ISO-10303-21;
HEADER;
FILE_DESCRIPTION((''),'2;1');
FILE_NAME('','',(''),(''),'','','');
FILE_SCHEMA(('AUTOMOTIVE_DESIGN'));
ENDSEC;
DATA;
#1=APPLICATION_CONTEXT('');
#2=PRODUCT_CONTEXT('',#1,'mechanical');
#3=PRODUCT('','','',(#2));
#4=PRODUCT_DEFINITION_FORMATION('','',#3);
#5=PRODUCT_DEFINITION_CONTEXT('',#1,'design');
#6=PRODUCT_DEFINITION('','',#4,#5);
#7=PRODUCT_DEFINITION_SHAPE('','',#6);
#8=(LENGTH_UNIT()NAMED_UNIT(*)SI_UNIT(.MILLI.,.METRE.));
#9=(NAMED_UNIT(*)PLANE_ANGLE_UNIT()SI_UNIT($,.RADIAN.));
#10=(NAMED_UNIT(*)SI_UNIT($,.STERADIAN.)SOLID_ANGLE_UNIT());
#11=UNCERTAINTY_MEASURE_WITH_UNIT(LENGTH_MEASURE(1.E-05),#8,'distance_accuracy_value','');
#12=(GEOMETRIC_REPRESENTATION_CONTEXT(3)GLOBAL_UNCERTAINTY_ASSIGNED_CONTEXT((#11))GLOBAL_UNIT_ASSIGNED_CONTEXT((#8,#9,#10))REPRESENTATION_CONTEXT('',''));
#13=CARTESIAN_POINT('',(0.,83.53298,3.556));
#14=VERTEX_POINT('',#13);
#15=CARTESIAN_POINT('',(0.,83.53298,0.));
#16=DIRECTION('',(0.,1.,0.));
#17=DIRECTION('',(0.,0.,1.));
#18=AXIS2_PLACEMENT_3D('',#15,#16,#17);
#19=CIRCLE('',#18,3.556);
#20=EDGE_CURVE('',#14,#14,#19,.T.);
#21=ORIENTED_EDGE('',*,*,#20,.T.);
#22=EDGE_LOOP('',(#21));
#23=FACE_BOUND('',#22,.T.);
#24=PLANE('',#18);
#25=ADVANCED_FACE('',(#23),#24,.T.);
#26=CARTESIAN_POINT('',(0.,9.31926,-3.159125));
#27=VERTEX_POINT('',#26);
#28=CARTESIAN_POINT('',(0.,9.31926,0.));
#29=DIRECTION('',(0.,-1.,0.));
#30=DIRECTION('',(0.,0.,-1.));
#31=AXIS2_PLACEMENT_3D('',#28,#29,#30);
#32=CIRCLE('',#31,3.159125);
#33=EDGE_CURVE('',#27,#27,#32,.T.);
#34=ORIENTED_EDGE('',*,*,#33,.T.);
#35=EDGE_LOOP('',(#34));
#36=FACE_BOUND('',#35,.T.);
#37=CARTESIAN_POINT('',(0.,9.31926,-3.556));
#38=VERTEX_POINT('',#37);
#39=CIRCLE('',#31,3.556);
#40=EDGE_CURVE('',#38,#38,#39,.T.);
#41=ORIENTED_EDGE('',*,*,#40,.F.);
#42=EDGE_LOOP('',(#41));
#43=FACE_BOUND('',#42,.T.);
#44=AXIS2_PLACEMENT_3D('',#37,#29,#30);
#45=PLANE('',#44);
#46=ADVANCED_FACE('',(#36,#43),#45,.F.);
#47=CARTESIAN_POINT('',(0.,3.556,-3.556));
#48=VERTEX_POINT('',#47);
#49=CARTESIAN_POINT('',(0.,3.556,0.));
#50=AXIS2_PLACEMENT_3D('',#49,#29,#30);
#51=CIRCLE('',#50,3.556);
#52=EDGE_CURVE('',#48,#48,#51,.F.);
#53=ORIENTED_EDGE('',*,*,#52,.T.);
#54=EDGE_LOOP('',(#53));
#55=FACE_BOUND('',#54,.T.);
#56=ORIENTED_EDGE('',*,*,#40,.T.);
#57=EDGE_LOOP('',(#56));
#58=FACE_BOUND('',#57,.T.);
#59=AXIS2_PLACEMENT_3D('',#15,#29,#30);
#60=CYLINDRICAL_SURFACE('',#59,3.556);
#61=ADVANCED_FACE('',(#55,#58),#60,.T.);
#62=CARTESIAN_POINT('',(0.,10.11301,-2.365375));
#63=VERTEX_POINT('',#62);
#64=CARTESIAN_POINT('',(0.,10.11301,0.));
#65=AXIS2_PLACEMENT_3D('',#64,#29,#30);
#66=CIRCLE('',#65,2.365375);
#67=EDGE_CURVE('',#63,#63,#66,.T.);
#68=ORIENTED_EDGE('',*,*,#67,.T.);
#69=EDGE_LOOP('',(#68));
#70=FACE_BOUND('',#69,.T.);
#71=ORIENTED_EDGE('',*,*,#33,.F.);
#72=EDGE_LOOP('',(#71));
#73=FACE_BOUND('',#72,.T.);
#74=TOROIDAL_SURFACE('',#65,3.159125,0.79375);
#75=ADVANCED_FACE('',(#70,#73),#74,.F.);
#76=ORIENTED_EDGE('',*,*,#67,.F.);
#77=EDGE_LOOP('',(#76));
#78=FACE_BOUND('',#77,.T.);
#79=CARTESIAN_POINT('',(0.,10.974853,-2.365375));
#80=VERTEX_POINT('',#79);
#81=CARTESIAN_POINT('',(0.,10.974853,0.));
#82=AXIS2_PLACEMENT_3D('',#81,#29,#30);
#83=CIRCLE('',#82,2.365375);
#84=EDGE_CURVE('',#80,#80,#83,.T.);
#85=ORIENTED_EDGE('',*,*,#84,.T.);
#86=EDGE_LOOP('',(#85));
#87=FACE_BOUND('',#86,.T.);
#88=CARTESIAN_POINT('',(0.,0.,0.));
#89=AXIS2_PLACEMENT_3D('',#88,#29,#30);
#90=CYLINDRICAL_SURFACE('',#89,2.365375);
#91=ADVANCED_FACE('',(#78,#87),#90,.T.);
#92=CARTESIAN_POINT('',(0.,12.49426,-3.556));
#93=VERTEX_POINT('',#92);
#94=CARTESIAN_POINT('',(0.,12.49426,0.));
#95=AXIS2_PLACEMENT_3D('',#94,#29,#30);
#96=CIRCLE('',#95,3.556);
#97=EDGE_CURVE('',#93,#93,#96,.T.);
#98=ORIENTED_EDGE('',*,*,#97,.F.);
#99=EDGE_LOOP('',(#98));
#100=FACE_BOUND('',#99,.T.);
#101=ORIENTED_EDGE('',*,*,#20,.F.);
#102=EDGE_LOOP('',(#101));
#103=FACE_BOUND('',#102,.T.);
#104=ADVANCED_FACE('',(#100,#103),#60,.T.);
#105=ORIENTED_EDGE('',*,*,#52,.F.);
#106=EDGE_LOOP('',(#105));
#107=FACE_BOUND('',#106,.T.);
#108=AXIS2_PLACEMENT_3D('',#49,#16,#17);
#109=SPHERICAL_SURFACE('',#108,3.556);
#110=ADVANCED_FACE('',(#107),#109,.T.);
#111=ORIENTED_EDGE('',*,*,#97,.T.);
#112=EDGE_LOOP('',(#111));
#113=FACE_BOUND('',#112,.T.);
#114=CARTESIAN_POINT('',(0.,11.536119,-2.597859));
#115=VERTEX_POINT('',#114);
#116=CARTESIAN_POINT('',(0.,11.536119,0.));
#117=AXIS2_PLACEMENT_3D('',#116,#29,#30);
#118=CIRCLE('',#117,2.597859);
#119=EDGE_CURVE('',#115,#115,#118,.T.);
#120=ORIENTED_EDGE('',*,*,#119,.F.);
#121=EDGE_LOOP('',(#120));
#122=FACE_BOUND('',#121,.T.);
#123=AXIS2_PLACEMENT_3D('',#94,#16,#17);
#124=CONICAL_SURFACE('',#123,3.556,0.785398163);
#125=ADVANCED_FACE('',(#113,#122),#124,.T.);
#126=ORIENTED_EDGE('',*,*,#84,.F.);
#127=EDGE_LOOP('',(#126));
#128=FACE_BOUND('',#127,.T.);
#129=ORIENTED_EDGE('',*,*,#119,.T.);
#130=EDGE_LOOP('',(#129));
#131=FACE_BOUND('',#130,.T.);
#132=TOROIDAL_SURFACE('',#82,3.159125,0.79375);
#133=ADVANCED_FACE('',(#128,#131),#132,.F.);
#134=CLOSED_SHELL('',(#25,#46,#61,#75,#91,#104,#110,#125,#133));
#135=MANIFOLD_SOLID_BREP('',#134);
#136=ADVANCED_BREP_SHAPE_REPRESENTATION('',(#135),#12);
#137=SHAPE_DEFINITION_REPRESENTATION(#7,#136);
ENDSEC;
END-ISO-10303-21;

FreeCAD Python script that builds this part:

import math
import FreeCAD as App
import Part
import Sketcher

V = App.Vector
Q = App.Units.Quantity


def edges_at(feature, points):
    """Names of the edges that pass closest to the given points."""
    edges = feature.Shape.Edges
    near = lambda p: min(range(len(edges)), key=lambda i: edges[i].distToShape(Part.Vertex(*p))[0])
    return sorted({f"Edge{near(p) + 1}" for p in points})

doc = App.newDocument("Part")
body = doc.addObject("PartDesign::Body", "Body")

sketch1 = body.newObject("Sketcher::SketchObject", "Sketch")
sketch1.AttachmentSupport = (doc.getObject("XZ_Plane"), [""])
sketch1.MapMode = "FlatFace"
sketch1.addGeometry(Part.Circle(V(0, 0, 0), V(0, 0, 1), 3.556), False)
sketch1.addConstraint([
    Sketcher.Constraint("Coincident", 0, 3, -1, 1),
    Sketcher.Constraint("Diameter", 0, Q("0.28 in")),
])
pad1 = body.newObject("PartDesign::Pad", "Pad")
pad1.Profile = sketch1
pad1.Length = Q("3.2887 in")
pad1.Reversed = True

sketch2 = body.newObject("Sketcher::SketchObject", "Sketch001")
sketch2.AttachmentSupport = (doc.getObject("YZ_Plane"), [""])
sketch2.MapMode = "FlatFace"
sketch2.addGeometry([
    Part.LineSegment(V(9.31926, -3.556, 0), V(12.49426, -3.556, 0)),
    Part.LineSegment(V(12.49426, -3.556, 0), V(11.536119, -2.597859, 0)),
    Part.ArcOfCircle(Part.Circle(V(10.974853, -3.159125, 0), V(0, 0, 1), 0.79375), math.radians(45), math.radians(90)),
    Part.LineSegment(V(10.974853, -2.365375, 0), V(10.11301, -2.365375, 0)),
    Part.ArcOfCircle(Part.Circle(V(10.11301, -3.159125, 0), V(0, 0, 1), 0.79375), math.radians(90), math.radians(180)),
    Part.LineSegment(V(9.31926, -3.159125, 0), V(9.31926, -3.556, 0)),
], False)
sketch2.addConstraint([
    Sketcher.Constraint("Coincident", 0, 2, 1, 1),
    Sketcher.Constraint("Tangent", 1, 2, 2, 1),
    Sketcher.Constraint("Tangent", 2, 2, 3, 1),
    Sketcher.Constraint("Tangent", 3, 2, 4, 1),
    Sketcher.Constraint("Tangent", 4, 2, 5, 1),
    Sketcher.Constraint("Coincident", 5, 2, 0, 1),
    Sketcher.Constraint("Horizontal", 0),
    Sketcher.Constraint("Horizontal", 3),
    Sketcher.Constraint("Vertical", 5),
    Sketcher.Constraint("Equal", 2, 4),
    Sketcher.Constraint("Angle", 1, Q("135 deg")),
    Sketcher.Constraint("Radius", 2, Q("0.03125 in")),
    Sketcher.Constraint("DistanceX", 0, 1, 0, 2, Q("0.125 in")),
    Sketcher.Constraint("DistanceY", 5, 2, 5, 1, Q("0.015625 in")),
    Sketcher.Constraint("DistanceY", 0, 2, -1, 1, Q("0.14 in")),
    Sketcher.Constraint("DistanceX", -1, 1, 0, 2, Q("0.4919 in")),
])
groove = body.newObject("PartDesign::Groove", "Groove")
groove.Profile = sketch2
groove.ReferenceAxis = (sketch2, ["H_Axis"])
groove.Angle = 360
doc.recompute()

fillet = body.newObject("PartDesign::Fillet", "Fillet")
fillet.Base = (groove, edges_at(groove, [(0, 0, -3.556)]))
fillet.Radius = Q("0.14 in")

doc.recompute()
